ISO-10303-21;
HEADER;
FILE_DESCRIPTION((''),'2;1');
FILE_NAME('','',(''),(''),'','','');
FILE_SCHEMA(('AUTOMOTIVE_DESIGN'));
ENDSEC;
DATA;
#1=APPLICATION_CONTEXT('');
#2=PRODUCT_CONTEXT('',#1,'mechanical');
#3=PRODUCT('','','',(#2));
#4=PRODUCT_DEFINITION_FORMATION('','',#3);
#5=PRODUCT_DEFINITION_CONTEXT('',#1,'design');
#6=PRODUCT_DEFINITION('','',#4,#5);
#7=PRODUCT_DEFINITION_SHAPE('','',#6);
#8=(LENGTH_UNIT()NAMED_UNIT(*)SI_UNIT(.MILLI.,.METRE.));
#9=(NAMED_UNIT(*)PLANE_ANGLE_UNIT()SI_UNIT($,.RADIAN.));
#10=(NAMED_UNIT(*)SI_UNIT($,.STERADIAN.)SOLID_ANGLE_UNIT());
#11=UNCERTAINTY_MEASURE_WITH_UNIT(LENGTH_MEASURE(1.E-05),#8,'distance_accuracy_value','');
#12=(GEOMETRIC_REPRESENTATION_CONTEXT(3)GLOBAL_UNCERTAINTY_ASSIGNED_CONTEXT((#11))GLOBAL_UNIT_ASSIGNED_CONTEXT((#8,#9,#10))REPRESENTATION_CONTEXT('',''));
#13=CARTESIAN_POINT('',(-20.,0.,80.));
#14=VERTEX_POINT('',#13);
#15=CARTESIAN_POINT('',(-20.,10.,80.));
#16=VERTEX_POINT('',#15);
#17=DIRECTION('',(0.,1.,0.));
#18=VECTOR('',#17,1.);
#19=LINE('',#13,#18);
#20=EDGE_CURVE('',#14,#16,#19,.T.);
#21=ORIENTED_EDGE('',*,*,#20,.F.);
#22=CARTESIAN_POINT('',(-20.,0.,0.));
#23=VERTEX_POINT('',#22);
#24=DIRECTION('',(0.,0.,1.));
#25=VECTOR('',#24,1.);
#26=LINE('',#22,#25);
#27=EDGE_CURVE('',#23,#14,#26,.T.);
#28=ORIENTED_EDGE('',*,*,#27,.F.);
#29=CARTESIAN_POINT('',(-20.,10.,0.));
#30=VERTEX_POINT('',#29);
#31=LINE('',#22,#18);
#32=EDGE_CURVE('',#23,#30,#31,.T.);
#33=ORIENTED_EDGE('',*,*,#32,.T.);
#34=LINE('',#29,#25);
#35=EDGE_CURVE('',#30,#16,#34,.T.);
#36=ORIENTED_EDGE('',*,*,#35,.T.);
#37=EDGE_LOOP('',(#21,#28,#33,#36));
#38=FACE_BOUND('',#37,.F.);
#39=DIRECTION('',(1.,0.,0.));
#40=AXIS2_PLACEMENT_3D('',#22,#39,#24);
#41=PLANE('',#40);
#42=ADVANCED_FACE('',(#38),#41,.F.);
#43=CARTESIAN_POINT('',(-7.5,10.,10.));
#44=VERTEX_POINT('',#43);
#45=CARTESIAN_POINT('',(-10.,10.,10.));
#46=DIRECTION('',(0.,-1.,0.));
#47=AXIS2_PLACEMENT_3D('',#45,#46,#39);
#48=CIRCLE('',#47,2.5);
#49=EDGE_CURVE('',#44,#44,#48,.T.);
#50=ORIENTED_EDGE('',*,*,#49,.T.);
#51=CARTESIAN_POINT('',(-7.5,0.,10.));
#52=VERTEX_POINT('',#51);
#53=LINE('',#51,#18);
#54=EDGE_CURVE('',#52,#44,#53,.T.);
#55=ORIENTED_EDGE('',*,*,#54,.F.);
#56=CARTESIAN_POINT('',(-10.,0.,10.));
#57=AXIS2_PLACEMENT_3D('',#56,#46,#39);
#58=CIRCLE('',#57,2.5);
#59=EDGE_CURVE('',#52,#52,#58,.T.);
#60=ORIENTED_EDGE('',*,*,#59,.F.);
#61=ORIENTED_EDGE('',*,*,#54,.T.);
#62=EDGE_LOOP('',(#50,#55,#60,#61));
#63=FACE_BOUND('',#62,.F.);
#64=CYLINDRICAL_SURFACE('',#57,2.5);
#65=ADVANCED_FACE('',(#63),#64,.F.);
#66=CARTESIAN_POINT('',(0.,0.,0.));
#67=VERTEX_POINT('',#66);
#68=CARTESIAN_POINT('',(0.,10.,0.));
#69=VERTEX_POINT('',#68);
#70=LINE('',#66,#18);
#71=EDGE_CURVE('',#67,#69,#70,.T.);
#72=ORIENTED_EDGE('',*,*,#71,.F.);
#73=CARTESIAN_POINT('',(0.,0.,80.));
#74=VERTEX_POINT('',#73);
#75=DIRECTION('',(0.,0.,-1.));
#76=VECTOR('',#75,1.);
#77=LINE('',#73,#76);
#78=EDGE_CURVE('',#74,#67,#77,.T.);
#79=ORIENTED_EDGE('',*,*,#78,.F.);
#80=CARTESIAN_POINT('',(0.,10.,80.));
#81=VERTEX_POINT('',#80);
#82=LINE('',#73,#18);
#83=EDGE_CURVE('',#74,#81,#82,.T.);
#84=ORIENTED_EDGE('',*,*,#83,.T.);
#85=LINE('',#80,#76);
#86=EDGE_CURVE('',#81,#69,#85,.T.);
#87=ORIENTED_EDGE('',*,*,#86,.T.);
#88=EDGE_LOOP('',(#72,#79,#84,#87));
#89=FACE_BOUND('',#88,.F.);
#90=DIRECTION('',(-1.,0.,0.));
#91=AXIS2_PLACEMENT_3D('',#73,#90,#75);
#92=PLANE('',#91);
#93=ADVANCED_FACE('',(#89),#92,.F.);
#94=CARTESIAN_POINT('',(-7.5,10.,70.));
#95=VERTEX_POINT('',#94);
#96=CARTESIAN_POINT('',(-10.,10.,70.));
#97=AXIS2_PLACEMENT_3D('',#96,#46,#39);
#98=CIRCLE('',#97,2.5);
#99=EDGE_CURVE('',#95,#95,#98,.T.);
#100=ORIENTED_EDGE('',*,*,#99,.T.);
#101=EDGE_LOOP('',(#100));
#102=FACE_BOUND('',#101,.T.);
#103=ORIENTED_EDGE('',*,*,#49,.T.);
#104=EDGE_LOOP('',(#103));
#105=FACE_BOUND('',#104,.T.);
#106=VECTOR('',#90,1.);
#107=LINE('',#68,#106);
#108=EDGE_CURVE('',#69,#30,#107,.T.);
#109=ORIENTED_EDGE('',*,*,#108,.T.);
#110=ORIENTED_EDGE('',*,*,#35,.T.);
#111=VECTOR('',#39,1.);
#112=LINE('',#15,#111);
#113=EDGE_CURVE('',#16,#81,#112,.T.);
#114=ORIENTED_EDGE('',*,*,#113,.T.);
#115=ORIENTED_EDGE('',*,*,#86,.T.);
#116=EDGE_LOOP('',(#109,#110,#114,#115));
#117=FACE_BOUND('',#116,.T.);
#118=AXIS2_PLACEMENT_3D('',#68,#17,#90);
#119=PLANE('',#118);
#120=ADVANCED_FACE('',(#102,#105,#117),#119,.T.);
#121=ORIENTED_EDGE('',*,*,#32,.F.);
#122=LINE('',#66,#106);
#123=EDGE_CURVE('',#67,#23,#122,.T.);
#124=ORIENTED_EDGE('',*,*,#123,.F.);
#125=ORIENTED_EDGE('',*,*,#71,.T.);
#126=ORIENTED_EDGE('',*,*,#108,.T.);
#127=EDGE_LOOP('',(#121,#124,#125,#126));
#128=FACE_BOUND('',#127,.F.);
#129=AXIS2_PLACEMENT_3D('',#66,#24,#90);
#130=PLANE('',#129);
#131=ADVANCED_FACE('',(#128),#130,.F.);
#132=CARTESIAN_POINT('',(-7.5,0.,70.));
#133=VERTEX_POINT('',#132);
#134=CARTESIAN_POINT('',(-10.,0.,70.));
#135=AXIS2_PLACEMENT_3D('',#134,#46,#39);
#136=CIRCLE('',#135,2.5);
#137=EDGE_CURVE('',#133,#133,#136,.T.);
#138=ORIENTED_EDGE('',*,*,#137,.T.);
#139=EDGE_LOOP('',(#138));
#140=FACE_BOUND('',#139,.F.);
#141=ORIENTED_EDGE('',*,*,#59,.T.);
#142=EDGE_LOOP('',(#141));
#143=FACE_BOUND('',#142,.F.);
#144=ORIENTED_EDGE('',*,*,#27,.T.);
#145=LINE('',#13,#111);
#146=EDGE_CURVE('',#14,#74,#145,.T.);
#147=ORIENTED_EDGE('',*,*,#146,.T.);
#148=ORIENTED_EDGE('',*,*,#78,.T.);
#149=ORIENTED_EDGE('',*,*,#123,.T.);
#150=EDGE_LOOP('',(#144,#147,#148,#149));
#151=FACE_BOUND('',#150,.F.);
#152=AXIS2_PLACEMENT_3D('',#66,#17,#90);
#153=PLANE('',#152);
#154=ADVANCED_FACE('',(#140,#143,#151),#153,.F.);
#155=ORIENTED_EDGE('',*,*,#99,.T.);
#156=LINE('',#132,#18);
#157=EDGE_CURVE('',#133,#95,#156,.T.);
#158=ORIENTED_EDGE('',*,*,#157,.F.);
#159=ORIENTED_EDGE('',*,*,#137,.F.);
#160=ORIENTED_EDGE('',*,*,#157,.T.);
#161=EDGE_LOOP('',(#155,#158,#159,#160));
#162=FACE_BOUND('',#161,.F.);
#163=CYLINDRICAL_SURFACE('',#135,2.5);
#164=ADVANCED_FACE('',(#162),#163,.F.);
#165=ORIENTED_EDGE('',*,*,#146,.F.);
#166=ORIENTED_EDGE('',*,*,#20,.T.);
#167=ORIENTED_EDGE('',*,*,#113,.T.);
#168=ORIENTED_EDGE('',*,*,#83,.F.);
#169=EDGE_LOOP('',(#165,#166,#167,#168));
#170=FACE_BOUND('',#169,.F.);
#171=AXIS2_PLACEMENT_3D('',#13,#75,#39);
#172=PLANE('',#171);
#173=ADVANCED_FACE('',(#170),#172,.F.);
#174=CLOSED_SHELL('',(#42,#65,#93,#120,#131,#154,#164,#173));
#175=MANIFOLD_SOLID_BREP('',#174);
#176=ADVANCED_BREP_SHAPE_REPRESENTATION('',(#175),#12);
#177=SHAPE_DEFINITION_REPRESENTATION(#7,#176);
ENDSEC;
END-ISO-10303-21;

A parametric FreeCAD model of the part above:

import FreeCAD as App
import Part
import Sketcher
from FreeCAD import Vector
Q = App.Units.Quantity


def add_polygon(sketch, points):
    """Adds a closed chain of lines whose ends are joined by coincident constraints."""
    first, n = sketch.GeometryCount, len(points)
    for a, b in zip(points, points[1:] + points[:1]):
        sketch.addGeometry(Part.LineSegment(App.Vector(*a, 0), App.Vector(*b, 0)), False)
    for i in range(n):
        sketch.addConstraint(Sketcher.Constraint("Coincident", first + i, 2, first + (i + 1) % n, 1))

doc = App.newDocument("Part")
params = doc.addObject("Spreadsheet::Sheet", "Params")
for row, (alias, value) in enumerate([
    ("sketch1_width", "20 mm"),
    ("sketch1_height", "80 mm"),
    ("pad1_length", "10 mm"),
    ("sketch2_diameter", "5 mm"),
], start=1):
    params.set(f"A{row}", alias)
    params.set(f"B{row}", "=" + value)
    params.setAlias(f"B{row}", alias)

body = doc.addObject("PartDesign::Body", "Body")

sketch1 = doc.addObject("Sketcher::SketchObject", "Sketch")
body.addObject(sketch1)
sketch1.AttachmentSupport = (doc.XZ_Plane, [""])
sketch1.MapMode = "FlatFace"
add_polygon(sketch1, [(0, 80), (0, 0), (-20, 0), (-20, 80)])
sketch1.addConstraint([
    Sketcher.Constraint("Vertical", 0),
    Sketcher.Constraint("Horizontal", 1),
    Sketcher.Constraint("Vertical", 2),
    Sketcher.Constraint("Horizontal", 3),
    Sketcher.Constraint("Coincident", 0, 2, -1, 1),
    Sketcher.Constraint("DistanceX", 1, 2, 1, 1, Q("20 mm")),
    Sketcher.Constraint("DistanceY", 0, 2, 0, 1, Q("80 mm")),
])
sketch1.setExpression("Constraints[9]", "Params.sketch1_width")
sketch1.setExpression("Constraints[10]", "Params.sketch1_height")
pad1 = doc.addObject("PartDesign::Pad", "Pad")
body.addObject(pad1)
pad1.Profile = sketch1
pad1.setExpression("Length", "Params.pad1_length")
pad1.Reversed = True

sketch2 = doc.addObject("Sketcher::SketchObject", "Sketch001")
body.addObject(sketch2)
sketch2.AttachmentSupport = (doc.XZ_Plane, [""])
sketch2.MapMode = "FlatFace"
sketch2.addGeometry([
    Part.Circle(Vector(-10, 10, 0), Vector(0, 0, 1), 2.5),
    Part.Circle(Vector(-10, 70, 0), Vector(0, 0, 1), 2.5),
], False)
sketch2.addConstraint([
    Sketcher.Constraint("Equal", 0, 1),
    Sketcher.Constraint("Vertical", 0, 3, 1, 3),
    Sketcher.Constraint("Diameter", 0, Q("5 mm")),
    Sketcher.Constraint("DistanceX", 0, 3, -1, 1, Q("10 mm")),
    Sketcher.Constraint("DistanceY", -1, 1, 0, 3, Q("10 mm")),
    Sketcher.Constraint("DistanceY", -1, 1, 1, 3, Q("70 mm")),
])
sketch2.setExpression("Constraints[2]", "Params.sketch2_diameter")
pocket1 = doc.addObject("PartDesign::Pocket", "Pocket")
body.addObject(pocket1)
pocket1.Profile = sketch2
pocket1.Type = "ThroughAll"

doc.recompute()
